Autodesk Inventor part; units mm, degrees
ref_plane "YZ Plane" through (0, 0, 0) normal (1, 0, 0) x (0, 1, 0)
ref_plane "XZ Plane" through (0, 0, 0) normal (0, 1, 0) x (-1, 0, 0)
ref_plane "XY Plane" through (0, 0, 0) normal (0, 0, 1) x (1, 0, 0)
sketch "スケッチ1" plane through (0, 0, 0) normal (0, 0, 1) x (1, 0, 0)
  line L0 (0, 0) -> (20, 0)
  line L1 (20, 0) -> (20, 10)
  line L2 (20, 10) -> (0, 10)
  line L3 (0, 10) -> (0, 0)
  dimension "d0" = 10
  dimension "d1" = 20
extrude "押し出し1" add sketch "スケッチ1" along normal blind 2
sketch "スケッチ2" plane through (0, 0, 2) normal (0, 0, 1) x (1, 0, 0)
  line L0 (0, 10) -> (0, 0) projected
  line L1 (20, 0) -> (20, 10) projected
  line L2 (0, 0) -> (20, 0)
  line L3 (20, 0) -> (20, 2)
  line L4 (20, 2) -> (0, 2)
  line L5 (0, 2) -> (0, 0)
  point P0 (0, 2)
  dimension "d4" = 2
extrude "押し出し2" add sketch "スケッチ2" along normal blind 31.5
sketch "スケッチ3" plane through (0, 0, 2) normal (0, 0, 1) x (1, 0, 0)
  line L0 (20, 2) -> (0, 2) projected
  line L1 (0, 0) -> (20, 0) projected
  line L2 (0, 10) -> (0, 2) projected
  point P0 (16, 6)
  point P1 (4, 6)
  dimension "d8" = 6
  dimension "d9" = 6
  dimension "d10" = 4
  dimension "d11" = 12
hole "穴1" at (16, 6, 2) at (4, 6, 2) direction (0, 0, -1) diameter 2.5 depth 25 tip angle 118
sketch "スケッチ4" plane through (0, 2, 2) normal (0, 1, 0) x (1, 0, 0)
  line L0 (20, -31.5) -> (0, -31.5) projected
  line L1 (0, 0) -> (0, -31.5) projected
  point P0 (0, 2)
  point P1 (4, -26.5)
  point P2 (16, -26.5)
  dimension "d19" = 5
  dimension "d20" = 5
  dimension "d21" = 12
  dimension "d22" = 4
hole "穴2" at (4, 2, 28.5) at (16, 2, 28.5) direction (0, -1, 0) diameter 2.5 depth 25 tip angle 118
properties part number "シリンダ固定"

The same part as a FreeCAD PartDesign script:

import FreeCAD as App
import Part
import Sketcher

doc = App.newDocument("Part")
body = doc.addObject("PartDesign::Body", "Body")

# Sketch on XY plane
sketch1 = body.newObject("Sketcher::SketchObject", "Sketch")
sketch1.AttachmentSupport = (doc.getObject("XY_Plane"), [""])
sketch1.MapMode = "FlatFace"
sketch1.addGeometry(Part.LineSegment(App.Vector(0, 10, 0), App.Vector(0, 0, 0)), False)
sketch1.addGeometry(Part.LineSegment(App.Vector(0, 0, 0), App.Vector(20, 0, 0)), False)
sketch1.addGeometry(Part.LineSegment(App.Vector(20, 0, 0), App.Vector(20, 10, 0)), False)
sketch1.addGeometry(Part.LineSegment(App.Vector(20, 10, 0), App.Vector(0, 10, 0)), False)
sketch1.addConstraint(Sketcher.Constraint("Coincident", 0, 2, 1, 1))
sketch1.addConstraint(Sketcher.Constraint("Coincident", 1, 2, 2, 1))
sketch1.addConstraint(Sketcher.Constraint("Coincident", 2, 2, 3, 1))
sketch1.addConstraint(Sketcher.Constraint("Coincident", 3, 2, 0, 1))
sketch1.addConstraint(Sketcher.Constraint("Vertical", 0))
sketch1.addConstraint(Sketcher.Constraint("Horizontal", 1))
sketch1.addConstraint(Sketcher.Constraint("Vertical", 2))
sketch1.addConstraint(Sketcher.Constraint("Horizontal", 3))
sketch1.addConstraint(Sketcher.Constraint("Coincident", 0, 2, -1, 1))
sketch1.addConstraint(Sketcher.Constraint("DistanceX", 1, 1, 1, 2, 20.0))
sketch1.addConstraint(Sketcher.Constraint("DistanceY", 0, 2, 0, 1, 10.0))
pad1 = body.newObject("PartDesign::Pad", "Pad")
pad1.Profile = sketch1
pad1.Length = 2

# Sketch on XY plane
sketch2 = body.newObject("Sketcher::SketchObject", "Sketch001")
sketch2.AttachmentSupport = (doc.getObject("XY_Plane"), [""])
sketch2.MapMode = "FlatFace"
sketch2.AttachmentOffset = App.Placement(App.Vector(0, 0, 2), App.Rotation())
sketch2.addGeometry(Part.LineSegment(App.Vector(20, 2, 0), App.Vector(0, 2, 0)), False)
sketch2.addGeometry(Part.LineSegment(App.Vector(0, 2, 0), App.Vector(0, 0, 0)), False)
sketch2.addGeometry(Part.LineSegment(App.Vector(0, 0, 0), App.Vector(20, 0, 0)), False)
sketch2.addGeometry(Part.LineSegment(App.Vector(20, 0, 0), App.Vector(20, 2, 0)), False)
sketch2.addConstraint(Sketcher.Constraint("Coincident", 0, 2, 1, 1))
sketch2.addConstraint(Sketcher.Constraint("Coincident", 1, 2, 2, 1))
sketch2.addConstraint(Sketcher.Constraint("Coincident", 2, 2, 3, 1))
sketch2.addConstraint(Sketcher.Constraint("Coincident", 3, 2, 0, 1))
sketch2.addConstraint(Sketcher.Constraint("Horizontal", 0))
sketch2.addConstraint(Sketcher.Constraint("Vertical", 1))
sketch2.addConstraint(Sketcher.Constraint("Horizontal", 2))
sketch2.addConstraint(Sketcher.Constraint("Vertical", 3))
sketch2.addConstraint(Sketcher.Constraint("Coincident", 1, 2, -1, 1))
sketch2.addConstraint(Sketcher.Constraint("DistanceY", 1, 2, 1, 1, 2.0))
sketch2.addConstraint(Sketcher.Constraint("DistanceX", 0, 2, 0, 1, 20.0))
pad2 = body.newObject("PartDesign::Pad", "Pad001")
pad2.Profile = sketch2
pad2.Length = 31.5

# Sketch on XY plane
sketch3 = body.newObject("Sketcher::SketchObject", "Sketch002")
sketch3.AttachmentSupport = (doc.getObject("XY_Plane"), [""])
sketch3.MapMode = "FlatFace"
sketch3.AttachmentOffset = App.Placement(App.Vector(0, 0, 2), App.Rotation())
sketch3.addGeometry(Part.Circle(App.Vector(16, 6, 0), App.Vector(0, 0, 1), 1.2), False)
sketch3.addGeometry(Part.Circle(App.Vector(4, 6, 0), App.Vector(0, 0, 1), 1.2), False)
sketch3.addConstraint(Sketcher.Constraint("Equal", 0, 1))
sketch3.addConstraint(Sketcher.Constraint("Horizontal", 0, 3, 1, 3))
sketch3.addConstraint(Sketcher.Constraint("Diameter", 0, 2.5))
sketch3.addConstraint(Sketcher.Constraint("DistanceX", -1, 1, 0, 3, 16.0))
sketch3.addConstraint(Sketcher.Constraint("DistanceY", -1, 1, 0, 3, 6.0))
sketch3.addConstraint(Sketcher.Constraint("DistanceX", -1, 1, 1, 3, 4.0))
doc.recompute()
hole = body.newObject("PartDesign::Hole", "Hole")
hole.Profile = sketch3
hole.ThreadType = "None"
hole.Diameter = 2.5
hole.DepthType = "Dimension"
hole.Depth = 25
hole.DrillPoint = "Angled"
hole.DrillPointAngle = 118

# Sketch on XZ plane
sketch4 = body.newObject("Sketcher::SketchObject", "Sketch003")
sketch4.AttachmentSupport = (doc.getObject("XZ_Plane"), [""])
sketch4.MapMode = "FlatFace"
sketch4.AttachmentOffset = App.Placement(App.Vector(0, 0, -2), App.Rotation())
sketch4.addGeometry(Part.Circle(App.Vector(4, 28.5, 0), App.Vector(0, 0, 1), 1.2), False)
sketch4.addGeometry(Part.Circle(App.Vector(16, 28.5, 0), App.Vector(0, 0, 1), 1.2), False)
sketch4.addConstraint(Sketcher.Constraint("Equal", 0, 1))
sketch4.addConstraint(Sketcher.Constraint("Horizontal", 0, 3, 1, 3))
sketch4.addConstraint(Sketcher.Constraint("Diameter", 0, 2.5))
sketch4.addConstraint(Sketcher.Constraint("DistanceX", -1, 1, 0, 3, 4.0))
sketch4.addConstraint(Sketcher.Constraint("DistanceX", -1, 1, 1, 3, 16.0))
sketch4.addConstraint(Sketcher.Constraint("DistanceY", -1, 1, 0, 3, 28.5))
doc.recompute()
hole2 = body.newObject("PartDesign::Hole", "Hole001")
hole2.Profile = sketch4
hole2.ThreadType = "None"
hole2.Diameter = 2.5
hole2.DepthType = "Dimension"
hole2.Depth = 25
hole2.DrillPoint = "Angled"
hole2.DrillPointAngle = 118
hole2.Reversed = True

doc.recompute()
